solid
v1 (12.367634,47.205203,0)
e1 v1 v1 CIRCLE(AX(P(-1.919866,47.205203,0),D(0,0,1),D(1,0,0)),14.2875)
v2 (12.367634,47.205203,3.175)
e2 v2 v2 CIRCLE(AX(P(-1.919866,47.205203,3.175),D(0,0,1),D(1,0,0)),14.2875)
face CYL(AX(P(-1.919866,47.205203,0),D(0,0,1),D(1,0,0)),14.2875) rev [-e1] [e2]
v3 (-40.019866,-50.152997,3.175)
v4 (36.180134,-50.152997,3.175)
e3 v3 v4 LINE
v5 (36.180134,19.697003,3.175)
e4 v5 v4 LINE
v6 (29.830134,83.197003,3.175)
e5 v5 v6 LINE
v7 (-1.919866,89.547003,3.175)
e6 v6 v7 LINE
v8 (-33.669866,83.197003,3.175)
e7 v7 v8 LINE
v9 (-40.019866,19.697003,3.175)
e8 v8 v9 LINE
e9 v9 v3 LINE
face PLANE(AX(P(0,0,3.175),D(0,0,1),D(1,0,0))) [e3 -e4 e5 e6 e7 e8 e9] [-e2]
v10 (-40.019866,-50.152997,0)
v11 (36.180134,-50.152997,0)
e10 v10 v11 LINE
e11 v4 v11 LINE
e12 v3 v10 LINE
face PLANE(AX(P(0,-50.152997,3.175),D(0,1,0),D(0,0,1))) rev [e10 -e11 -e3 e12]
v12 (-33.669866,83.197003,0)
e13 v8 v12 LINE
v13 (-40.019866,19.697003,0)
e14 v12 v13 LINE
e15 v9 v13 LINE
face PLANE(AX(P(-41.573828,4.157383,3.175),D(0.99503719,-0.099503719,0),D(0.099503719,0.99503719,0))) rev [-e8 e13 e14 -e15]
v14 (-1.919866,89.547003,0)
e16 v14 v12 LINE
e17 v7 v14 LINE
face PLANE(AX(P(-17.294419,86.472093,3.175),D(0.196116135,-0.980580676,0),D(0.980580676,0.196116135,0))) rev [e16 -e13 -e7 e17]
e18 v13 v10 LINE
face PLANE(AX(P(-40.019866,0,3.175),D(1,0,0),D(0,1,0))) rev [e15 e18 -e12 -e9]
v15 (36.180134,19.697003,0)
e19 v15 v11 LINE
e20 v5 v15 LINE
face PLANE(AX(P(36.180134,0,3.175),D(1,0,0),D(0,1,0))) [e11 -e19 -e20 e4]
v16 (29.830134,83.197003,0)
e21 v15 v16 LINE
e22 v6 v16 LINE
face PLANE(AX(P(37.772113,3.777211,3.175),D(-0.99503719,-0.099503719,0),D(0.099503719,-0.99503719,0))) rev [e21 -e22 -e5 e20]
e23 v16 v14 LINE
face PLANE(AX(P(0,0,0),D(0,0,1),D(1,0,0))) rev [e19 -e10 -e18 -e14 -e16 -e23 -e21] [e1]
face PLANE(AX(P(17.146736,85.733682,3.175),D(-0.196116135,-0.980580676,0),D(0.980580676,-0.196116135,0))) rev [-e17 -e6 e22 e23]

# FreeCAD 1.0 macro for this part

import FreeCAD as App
import Part
import Sketcher
from FreeCAD import Vector
Q = App.Units.Quantity

doc = App.newDocument("Part")
body = doc.addObject("PartDesign::Body", "Body")

# Sketch on XY plane
sketch1 = body.newObject("Sketcher::SketchObject", "Sketch")
sketch1.AttachmentSupport = (doc.getObject("XY_Plane"), [""])
sketch1.MapMode = "FlatFace"
sketch1.addGeometry([
    Part.LineSegment(Vector(36, -50, 0), Vector(36, 20, 0)),  # 0
    Part.LineSegment(Vector(36, 20, 0), Vector(30, 83, 0)),  # 1
    Part.LineSegment(Vector(30, 83, 0), Vector(-2, 90, 0)),  # 2
    Part.LineSegment(Vector(-2, 90, 0), Vector(-34, 83, 0)),  # 3
    Part.LineSegment(Vector(-34, 83, 0), Vector(-40, 20, 0)),  # 4
    Part.LineSegment(Vector(-40, 20, 0), Vector(-40, -50, 0)),  # 5
    Part.LineSegment(Vector(-40, -50, 0), Vector(36, -50, 0)),  # 6
], False)
sketch1.addConstraint([
    Sketcher.Constraint("Coincident", 0, 2, 1, 1),
    Sketcher.Constraint("Coincident", 1, 2, 2, 1),
    Sketcher.Constraint("Coincident", 2, 2, 3, 1),
    Sketcher.Constraint("Coincident", 3, 2, 4, 1),
    Sketcher.Constraint("Coincident", 4, 2, 5, 1),
    Sketcher.Constraint("Coincident", 5, 2, 6, 1),
    Sketcher.Constraint("Coincident", 6, 2, 0, 1),
    Sketcher.Constraint("Vertical", 0),
    Sketcher.Constraint("Vertical", 5),
    Sketcher.Constraint("Horizontal", 6),
    Sketcher.Constraint("Horizontal", 1, 2, 3, 2),
    Sketcher.Constraint("Horizontal", 0, 2, 4, 2),
    Sketcher.Constraint("Equal", 2, 3),
    Sketcher.Constraint("Equal", 1, 4),
    Sketcher.Constraint("DistanceX", 6, 1, 6, 2, Q("3 in")),
    Sketcher.Constraint("DistanceY", 0, 1, 0, 2, Q("2.75 in")),
    Sketcher.Constraint("DistanceY", 0, 2, 1, 2, Q("2.5 in")),
    Sketcher.Constraint("DistanceX", 3, 2, 1, 2, Q("2.5 in")),
    Sketcher.Constraint("DistanceY", 5, 2, 2, 2, Q("5.5 in")),
    Sketcher.Constraint("DistanceX", -1, 1, 0, 2, 36.180134),
    Sketcher.Constraint("DistanceY", -1, 1, 0, 2, 19.697003),
])
pad1 = body.newObject("PartDesign::Pad", "Pad")
pad1.Profile = sketch1
pad1.Length = Q("0.125 in")

# Sketch on XY plane
sketch2 = body.newObject("Sketcher::SketchObject", "Sketch001")
sketch2.AttachmentSupport = (doc.getObject("XY_Plane"), [""])
sketch2.MapMode = "FlatFace"
sketch2.AttachmentOffset = App.Placement(Vector(0, 0, 0.125 * 25.4), App.Rotation())
sketch2.addGeometry(Part.Circle(Vector(-2, 47, 0), Vector(0, 0, 1), 14), False)
sketch2.addConstraint([
    Sketcher.Constraint("Diameter", 0, Q("1.125 in")),
    Sketcher.Constraint("DistanceX", 0, 3, -1, 1, 1.919866),
    Sketcher.Constraint("DistanceY", -1, 1, 0, 3, 47.205203),
])
pocket1 = body.newObject("PartDesign::Pocket", "Pocket")
pocket1.Profile = sketch2
pocket1.Length = Q("0.125 in")

doc.recompute()
